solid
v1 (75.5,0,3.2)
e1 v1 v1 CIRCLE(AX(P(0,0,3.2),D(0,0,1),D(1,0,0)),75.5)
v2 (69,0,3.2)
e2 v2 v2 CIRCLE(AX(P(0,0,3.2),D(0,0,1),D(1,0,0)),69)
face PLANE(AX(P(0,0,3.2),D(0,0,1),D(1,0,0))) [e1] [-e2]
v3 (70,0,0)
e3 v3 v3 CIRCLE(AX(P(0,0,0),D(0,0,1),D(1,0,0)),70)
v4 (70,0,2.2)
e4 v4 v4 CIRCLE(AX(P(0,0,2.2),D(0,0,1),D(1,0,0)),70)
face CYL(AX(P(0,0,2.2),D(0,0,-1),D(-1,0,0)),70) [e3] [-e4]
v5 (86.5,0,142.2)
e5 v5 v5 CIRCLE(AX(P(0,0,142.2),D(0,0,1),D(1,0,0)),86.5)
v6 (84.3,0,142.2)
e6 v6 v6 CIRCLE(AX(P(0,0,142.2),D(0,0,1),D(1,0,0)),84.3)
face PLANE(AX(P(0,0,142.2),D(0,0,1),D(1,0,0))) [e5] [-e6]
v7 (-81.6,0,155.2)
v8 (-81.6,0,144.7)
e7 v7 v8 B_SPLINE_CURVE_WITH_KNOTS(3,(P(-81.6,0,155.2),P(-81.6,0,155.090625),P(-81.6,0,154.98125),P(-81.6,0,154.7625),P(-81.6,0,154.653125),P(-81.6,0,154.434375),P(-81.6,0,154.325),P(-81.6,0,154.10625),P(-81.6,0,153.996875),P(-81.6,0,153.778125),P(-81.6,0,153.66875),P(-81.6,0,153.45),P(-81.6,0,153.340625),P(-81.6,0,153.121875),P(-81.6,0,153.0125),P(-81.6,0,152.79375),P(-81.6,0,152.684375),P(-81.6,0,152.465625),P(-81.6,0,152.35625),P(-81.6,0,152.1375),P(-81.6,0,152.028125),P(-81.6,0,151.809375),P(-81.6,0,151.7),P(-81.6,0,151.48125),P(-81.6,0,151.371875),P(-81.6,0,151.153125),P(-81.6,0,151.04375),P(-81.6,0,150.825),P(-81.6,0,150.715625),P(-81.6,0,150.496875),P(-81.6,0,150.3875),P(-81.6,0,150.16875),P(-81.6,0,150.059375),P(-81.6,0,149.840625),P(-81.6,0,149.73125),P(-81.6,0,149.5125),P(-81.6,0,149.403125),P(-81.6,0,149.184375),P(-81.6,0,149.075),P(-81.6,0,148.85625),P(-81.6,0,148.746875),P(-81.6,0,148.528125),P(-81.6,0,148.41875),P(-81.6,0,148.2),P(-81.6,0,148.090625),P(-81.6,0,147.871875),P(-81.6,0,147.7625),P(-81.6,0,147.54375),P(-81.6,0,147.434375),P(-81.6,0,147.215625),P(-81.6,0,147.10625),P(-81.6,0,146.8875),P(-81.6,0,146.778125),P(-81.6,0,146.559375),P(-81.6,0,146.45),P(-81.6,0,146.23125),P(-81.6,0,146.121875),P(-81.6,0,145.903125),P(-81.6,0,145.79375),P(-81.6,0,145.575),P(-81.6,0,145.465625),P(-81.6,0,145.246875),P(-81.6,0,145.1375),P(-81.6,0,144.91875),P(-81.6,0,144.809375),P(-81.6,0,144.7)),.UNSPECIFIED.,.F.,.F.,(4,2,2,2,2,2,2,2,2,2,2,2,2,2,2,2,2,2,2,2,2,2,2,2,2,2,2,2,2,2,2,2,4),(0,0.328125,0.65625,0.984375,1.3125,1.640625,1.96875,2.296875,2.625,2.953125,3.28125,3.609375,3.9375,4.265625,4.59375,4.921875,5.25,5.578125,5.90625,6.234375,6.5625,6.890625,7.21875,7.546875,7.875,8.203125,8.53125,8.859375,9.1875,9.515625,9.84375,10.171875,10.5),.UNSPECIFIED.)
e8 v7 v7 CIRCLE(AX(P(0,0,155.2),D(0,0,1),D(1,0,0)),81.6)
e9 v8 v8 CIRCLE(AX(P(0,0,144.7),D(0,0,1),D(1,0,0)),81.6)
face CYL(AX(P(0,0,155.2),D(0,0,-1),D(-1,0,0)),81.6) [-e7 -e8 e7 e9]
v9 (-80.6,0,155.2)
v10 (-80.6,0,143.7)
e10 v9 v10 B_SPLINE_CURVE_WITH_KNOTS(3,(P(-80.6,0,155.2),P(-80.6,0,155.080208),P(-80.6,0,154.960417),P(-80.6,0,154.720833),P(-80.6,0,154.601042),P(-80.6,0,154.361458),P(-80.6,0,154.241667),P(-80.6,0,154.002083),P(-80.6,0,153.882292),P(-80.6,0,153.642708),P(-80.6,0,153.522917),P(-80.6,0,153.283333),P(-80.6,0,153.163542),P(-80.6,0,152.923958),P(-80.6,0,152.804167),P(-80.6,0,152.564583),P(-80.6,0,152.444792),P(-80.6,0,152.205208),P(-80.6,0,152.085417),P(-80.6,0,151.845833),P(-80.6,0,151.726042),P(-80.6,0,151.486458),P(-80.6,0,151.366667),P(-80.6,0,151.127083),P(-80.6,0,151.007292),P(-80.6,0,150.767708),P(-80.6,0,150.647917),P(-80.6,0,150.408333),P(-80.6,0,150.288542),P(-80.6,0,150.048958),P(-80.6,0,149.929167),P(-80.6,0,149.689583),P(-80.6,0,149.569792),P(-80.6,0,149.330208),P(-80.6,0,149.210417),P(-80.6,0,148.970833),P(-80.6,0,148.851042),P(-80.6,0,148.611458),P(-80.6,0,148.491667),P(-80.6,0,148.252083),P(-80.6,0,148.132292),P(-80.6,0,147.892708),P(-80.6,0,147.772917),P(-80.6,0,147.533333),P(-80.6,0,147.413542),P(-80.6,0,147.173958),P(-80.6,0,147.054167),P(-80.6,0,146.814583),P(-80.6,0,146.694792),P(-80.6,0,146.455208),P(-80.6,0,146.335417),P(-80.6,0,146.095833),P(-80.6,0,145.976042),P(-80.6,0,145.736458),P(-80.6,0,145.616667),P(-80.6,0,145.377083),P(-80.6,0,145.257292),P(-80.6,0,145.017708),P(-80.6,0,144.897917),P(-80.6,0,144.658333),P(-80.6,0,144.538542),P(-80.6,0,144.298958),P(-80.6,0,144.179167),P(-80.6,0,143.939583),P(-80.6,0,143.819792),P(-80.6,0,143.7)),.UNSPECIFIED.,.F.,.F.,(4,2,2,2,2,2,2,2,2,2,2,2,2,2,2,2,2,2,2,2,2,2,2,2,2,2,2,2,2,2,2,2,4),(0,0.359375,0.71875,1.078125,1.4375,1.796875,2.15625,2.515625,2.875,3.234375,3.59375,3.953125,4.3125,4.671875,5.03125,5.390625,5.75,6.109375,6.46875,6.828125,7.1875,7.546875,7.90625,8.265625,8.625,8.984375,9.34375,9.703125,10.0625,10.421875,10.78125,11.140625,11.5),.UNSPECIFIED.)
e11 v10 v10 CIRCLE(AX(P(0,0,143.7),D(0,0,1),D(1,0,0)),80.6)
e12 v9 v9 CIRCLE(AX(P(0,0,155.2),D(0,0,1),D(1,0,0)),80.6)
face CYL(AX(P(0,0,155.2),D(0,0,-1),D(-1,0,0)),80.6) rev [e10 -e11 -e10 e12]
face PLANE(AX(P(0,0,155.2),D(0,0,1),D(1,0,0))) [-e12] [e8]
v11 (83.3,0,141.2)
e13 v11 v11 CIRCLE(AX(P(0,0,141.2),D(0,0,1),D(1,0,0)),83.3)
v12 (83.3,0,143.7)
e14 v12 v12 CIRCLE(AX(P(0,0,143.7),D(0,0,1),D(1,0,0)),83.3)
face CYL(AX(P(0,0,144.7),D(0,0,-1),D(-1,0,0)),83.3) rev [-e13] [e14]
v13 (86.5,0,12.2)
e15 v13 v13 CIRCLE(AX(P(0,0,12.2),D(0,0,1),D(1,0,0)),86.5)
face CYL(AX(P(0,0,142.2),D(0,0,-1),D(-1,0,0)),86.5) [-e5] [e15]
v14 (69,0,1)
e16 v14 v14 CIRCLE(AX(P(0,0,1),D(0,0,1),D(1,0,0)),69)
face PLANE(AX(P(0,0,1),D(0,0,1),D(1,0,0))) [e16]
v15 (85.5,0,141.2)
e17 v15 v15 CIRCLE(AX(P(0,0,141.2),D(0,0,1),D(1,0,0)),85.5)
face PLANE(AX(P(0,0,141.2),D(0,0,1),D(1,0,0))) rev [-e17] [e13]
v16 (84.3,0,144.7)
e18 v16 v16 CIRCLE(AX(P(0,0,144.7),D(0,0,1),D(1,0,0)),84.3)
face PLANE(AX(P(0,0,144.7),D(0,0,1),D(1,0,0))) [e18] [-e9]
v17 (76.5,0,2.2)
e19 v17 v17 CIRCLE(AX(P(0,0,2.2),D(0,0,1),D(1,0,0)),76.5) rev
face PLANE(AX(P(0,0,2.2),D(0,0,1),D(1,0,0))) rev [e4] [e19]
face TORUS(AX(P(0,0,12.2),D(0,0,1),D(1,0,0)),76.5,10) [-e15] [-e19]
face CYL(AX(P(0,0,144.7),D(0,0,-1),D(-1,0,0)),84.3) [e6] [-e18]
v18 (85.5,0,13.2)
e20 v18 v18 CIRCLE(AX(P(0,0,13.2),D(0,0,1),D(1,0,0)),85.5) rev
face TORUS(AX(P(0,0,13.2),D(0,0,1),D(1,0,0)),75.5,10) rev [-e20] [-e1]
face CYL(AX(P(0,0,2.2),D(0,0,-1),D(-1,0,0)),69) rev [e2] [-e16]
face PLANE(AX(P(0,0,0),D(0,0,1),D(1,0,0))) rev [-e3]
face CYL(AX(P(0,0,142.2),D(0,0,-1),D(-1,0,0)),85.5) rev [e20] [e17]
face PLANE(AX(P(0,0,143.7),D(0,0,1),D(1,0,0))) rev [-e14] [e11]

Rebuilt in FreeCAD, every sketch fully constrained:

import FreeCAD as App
import Part
import Sketcher
from FreeCAD import Vector


def edges_at(feature, points):
    """Names of the edges that pass closest to the given points."""
    edges = feature.Shape.Edges
    near = lambda p: min(range(len(edges)), key=lambda i: edges[i].distToShape(Part.Vertex(*p))[0])
    return sorted({f"Edge{near(p) + 1}" for p in points})


def faces_at(feature, points):
    """Names of the faces that lie closest to the given points."""
    faces = feature.Shape.Faces
    near = lambda p: min(range(len(faces)), key=lambda i: faces[i].distToShape(Part.Vertex(*p))[0])
    return sorted({f"Face{near(p) + 1}" for p in points})

doc = App.newDocument("Part")
body = doc.addObject("PartDesign::Body", "Body")

# Sketch on XY plane
sketch1 = body.newObject("Sketcher::SketchObject", "Sketch")
sketch1.AttachmentSupport = (doc.getObject("XY_Plane"), [""])
sketch1.MapMode = "FlatFace"
sketch1.addGeometry(Part.Circle(Vector(0, 0, 0), Vector(0, 0, 1), 70), False)
sketch1.addConstraint([
    Sketcher.Constraint("Coincident", 0, 3, -1, 1),
    Sketcher.Constraint("Diameter", 0, 140.0),
])
pad1 = body.newObject("PartDesign::Pad", "Pad")
pad1.Profile = sketch1
pad1.Length = 2.2

# Sketch on XY plane
sketch2 = body.newObject("Sketcher::SketchObject", "Sketch001")
sketch2.AttachmentSupport = (doc.getObject("XY_Plane"), [""])
sketch2.MapMode = "FlatFace"
sketch2.AttachmentOffset = App.Placement(Vector(0, 0, 2.2), App.Rotation())
sketch2.addGeometry(Part.Circle(Vector(0, 0, 0), Vector(0, 0, 1), 86), False)
sketch2.addConstraint([
    Sketcher.Constraint("Coincident", 0, 3, -1, 1),
    Sketcher.Constraint("Diameter", 0, 173.0),
])
pad2 = body.newObject("PartDesign::Pad", "Pad001")
pad2.Profile = sketch2
pad2.Length = 140

# Sketch on XY plane
sketch3 = body.newObject("Sketcher::SketchObject", "Sketch002")
sketch3.AttachmentSupport = (doc.getObject("XY_Plane"), [""])
sketch3.MapMode = "FlatFace"
sketch3.AttachmentOffset = App.Placement(Vector(0, 0, 142.2), App.Rotation())
sketch3.addGeometry(Part.Circle(Vector(0, 0, 0), Vector(0, 0, 1), 84), False)
sketch3.addConstraint([
    Sketcher.Constraint("Coincident", 0, 3, -1, 1),
    Sketcher.Constraint("Diameter", 0, 168.6),
])
pad3 = body.newObject("PartDesign::Pad", "Pad002")
pad3.Profile = sketch3
pad3.Length = 2.5

# Sketch on XY plane
sketch4 = body.newObject("Sketcher::SketchObject", "Sketch003")
sketch4.AttachmentSupport = (doc.getObject("XY_Plane"), [""])
sketch4.MapMode = "FlatFace"
sketch4.AttachmentOffset = App.Placement(Vector(0, 0, 144.7), App.Rotation())
sketch4.addGeometry(Part.Circle(Vector(0, 0, 0), Vector(0, 0, 1), 82), False)
sketch4.addConstraint([
    Sketcher.Constraint("Coincident", 0, 3, -1, 1),
    Sketcher.Constraint("Diameter", 0, 163.2),
])
pad4 = body.newObject("PartDesign::Pad", "Pad003")
pad4.Profile = sketch4
pad4.Length = 10.5
doc.recompute()

thickness = body.newObject("PartDesign::Thickness", "Thickness")
thickness.Base = (pad4, faces_at(pad4, [(0, 0, 155.2)]))
thickness.Value = 1
thickness.Reversed = True
thickness.Join = "Intersection"
doc.recompute()

fillet = body.newObject("PartDesign::Fillet", "Fillet")
fillet.Base = (thickness, edges_at(thickness, [(-85.5, 0, 3.2), (-86.5, 0, 2.2)]))
fillet.Radius = 10

doc.recompute()
